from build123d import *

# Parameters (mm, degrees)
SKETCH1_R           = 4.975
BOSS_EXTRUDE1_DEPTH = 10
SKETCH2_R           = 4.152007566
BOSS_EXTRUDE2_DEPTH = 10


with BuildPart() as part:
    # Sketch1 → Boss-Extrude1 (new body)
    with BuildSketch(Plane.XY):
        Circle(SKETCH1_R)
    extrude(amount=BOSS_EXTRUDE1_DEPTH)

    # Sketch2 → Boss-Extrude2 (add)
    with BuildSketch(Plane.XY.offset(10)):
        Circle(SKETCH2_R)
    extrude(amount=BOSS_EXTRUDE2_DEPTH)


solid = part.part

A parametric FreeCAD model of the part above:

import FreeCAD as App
import Part
import Sketcher

doc = App.newDocument("Part")
body = doc.addObject("PartDesign::Body", "Body")

# Sketch on XY plane
sketch1 = doc.addObject("Sketcher::SketchObject", "Sketch")
body.addObject(sketch1)
sketch1.AttachmentSupport = (doc.XY_Plane, [""])
sketch1.MapMode = "FlatFace"
sketch1.addGeometry(Part.Circle(App.Vector(0, 0, 0), App.Vector(0, 0, 1), 4.975), False)
sketch1.addConstraint([
    Sketcher.Constraint("Coincident", 0, 3, -1, 1),
    Sketcher.Constraint("Diameter", 0, 9.95),
])
pad1 = doc.addObject("PartDesign::Pad", "Pad")
body.addObject(pad1)
pad1.Profile = sketch1
pad1.Length = 10

# Sketch on XY plane
sketch2 = doc.addObject("Sketcher::SketchObject", "Sketch001")
body.addObject(sketch2)
sketch2.AttachmentSupport = (doc.XY_Plane, [""])
sketch2.MapMode = "FlatFace"
sketch2.AttachmentOffset = App.Placement(App.Vector(0, 0, 10), App.Rotation())
sketch2.addGeometry(Part.Circle(App.Vector(0, 0, 0), App.Vector(0, 0, 1), 4.152008), False)
sketch2.addConstraint([
    Sketcher.Constraint("Coincident", 0, 3, -1, 1),
    Sketcher.Constraint("Diameter", 0, 8.304015),
])
pad2 = doc.addObject("PartDesign::Pad", "Pad001")
body.addObject(pad2)
pad2.Profile = sketch2
pad2.Length = 10

doc.recompute()
